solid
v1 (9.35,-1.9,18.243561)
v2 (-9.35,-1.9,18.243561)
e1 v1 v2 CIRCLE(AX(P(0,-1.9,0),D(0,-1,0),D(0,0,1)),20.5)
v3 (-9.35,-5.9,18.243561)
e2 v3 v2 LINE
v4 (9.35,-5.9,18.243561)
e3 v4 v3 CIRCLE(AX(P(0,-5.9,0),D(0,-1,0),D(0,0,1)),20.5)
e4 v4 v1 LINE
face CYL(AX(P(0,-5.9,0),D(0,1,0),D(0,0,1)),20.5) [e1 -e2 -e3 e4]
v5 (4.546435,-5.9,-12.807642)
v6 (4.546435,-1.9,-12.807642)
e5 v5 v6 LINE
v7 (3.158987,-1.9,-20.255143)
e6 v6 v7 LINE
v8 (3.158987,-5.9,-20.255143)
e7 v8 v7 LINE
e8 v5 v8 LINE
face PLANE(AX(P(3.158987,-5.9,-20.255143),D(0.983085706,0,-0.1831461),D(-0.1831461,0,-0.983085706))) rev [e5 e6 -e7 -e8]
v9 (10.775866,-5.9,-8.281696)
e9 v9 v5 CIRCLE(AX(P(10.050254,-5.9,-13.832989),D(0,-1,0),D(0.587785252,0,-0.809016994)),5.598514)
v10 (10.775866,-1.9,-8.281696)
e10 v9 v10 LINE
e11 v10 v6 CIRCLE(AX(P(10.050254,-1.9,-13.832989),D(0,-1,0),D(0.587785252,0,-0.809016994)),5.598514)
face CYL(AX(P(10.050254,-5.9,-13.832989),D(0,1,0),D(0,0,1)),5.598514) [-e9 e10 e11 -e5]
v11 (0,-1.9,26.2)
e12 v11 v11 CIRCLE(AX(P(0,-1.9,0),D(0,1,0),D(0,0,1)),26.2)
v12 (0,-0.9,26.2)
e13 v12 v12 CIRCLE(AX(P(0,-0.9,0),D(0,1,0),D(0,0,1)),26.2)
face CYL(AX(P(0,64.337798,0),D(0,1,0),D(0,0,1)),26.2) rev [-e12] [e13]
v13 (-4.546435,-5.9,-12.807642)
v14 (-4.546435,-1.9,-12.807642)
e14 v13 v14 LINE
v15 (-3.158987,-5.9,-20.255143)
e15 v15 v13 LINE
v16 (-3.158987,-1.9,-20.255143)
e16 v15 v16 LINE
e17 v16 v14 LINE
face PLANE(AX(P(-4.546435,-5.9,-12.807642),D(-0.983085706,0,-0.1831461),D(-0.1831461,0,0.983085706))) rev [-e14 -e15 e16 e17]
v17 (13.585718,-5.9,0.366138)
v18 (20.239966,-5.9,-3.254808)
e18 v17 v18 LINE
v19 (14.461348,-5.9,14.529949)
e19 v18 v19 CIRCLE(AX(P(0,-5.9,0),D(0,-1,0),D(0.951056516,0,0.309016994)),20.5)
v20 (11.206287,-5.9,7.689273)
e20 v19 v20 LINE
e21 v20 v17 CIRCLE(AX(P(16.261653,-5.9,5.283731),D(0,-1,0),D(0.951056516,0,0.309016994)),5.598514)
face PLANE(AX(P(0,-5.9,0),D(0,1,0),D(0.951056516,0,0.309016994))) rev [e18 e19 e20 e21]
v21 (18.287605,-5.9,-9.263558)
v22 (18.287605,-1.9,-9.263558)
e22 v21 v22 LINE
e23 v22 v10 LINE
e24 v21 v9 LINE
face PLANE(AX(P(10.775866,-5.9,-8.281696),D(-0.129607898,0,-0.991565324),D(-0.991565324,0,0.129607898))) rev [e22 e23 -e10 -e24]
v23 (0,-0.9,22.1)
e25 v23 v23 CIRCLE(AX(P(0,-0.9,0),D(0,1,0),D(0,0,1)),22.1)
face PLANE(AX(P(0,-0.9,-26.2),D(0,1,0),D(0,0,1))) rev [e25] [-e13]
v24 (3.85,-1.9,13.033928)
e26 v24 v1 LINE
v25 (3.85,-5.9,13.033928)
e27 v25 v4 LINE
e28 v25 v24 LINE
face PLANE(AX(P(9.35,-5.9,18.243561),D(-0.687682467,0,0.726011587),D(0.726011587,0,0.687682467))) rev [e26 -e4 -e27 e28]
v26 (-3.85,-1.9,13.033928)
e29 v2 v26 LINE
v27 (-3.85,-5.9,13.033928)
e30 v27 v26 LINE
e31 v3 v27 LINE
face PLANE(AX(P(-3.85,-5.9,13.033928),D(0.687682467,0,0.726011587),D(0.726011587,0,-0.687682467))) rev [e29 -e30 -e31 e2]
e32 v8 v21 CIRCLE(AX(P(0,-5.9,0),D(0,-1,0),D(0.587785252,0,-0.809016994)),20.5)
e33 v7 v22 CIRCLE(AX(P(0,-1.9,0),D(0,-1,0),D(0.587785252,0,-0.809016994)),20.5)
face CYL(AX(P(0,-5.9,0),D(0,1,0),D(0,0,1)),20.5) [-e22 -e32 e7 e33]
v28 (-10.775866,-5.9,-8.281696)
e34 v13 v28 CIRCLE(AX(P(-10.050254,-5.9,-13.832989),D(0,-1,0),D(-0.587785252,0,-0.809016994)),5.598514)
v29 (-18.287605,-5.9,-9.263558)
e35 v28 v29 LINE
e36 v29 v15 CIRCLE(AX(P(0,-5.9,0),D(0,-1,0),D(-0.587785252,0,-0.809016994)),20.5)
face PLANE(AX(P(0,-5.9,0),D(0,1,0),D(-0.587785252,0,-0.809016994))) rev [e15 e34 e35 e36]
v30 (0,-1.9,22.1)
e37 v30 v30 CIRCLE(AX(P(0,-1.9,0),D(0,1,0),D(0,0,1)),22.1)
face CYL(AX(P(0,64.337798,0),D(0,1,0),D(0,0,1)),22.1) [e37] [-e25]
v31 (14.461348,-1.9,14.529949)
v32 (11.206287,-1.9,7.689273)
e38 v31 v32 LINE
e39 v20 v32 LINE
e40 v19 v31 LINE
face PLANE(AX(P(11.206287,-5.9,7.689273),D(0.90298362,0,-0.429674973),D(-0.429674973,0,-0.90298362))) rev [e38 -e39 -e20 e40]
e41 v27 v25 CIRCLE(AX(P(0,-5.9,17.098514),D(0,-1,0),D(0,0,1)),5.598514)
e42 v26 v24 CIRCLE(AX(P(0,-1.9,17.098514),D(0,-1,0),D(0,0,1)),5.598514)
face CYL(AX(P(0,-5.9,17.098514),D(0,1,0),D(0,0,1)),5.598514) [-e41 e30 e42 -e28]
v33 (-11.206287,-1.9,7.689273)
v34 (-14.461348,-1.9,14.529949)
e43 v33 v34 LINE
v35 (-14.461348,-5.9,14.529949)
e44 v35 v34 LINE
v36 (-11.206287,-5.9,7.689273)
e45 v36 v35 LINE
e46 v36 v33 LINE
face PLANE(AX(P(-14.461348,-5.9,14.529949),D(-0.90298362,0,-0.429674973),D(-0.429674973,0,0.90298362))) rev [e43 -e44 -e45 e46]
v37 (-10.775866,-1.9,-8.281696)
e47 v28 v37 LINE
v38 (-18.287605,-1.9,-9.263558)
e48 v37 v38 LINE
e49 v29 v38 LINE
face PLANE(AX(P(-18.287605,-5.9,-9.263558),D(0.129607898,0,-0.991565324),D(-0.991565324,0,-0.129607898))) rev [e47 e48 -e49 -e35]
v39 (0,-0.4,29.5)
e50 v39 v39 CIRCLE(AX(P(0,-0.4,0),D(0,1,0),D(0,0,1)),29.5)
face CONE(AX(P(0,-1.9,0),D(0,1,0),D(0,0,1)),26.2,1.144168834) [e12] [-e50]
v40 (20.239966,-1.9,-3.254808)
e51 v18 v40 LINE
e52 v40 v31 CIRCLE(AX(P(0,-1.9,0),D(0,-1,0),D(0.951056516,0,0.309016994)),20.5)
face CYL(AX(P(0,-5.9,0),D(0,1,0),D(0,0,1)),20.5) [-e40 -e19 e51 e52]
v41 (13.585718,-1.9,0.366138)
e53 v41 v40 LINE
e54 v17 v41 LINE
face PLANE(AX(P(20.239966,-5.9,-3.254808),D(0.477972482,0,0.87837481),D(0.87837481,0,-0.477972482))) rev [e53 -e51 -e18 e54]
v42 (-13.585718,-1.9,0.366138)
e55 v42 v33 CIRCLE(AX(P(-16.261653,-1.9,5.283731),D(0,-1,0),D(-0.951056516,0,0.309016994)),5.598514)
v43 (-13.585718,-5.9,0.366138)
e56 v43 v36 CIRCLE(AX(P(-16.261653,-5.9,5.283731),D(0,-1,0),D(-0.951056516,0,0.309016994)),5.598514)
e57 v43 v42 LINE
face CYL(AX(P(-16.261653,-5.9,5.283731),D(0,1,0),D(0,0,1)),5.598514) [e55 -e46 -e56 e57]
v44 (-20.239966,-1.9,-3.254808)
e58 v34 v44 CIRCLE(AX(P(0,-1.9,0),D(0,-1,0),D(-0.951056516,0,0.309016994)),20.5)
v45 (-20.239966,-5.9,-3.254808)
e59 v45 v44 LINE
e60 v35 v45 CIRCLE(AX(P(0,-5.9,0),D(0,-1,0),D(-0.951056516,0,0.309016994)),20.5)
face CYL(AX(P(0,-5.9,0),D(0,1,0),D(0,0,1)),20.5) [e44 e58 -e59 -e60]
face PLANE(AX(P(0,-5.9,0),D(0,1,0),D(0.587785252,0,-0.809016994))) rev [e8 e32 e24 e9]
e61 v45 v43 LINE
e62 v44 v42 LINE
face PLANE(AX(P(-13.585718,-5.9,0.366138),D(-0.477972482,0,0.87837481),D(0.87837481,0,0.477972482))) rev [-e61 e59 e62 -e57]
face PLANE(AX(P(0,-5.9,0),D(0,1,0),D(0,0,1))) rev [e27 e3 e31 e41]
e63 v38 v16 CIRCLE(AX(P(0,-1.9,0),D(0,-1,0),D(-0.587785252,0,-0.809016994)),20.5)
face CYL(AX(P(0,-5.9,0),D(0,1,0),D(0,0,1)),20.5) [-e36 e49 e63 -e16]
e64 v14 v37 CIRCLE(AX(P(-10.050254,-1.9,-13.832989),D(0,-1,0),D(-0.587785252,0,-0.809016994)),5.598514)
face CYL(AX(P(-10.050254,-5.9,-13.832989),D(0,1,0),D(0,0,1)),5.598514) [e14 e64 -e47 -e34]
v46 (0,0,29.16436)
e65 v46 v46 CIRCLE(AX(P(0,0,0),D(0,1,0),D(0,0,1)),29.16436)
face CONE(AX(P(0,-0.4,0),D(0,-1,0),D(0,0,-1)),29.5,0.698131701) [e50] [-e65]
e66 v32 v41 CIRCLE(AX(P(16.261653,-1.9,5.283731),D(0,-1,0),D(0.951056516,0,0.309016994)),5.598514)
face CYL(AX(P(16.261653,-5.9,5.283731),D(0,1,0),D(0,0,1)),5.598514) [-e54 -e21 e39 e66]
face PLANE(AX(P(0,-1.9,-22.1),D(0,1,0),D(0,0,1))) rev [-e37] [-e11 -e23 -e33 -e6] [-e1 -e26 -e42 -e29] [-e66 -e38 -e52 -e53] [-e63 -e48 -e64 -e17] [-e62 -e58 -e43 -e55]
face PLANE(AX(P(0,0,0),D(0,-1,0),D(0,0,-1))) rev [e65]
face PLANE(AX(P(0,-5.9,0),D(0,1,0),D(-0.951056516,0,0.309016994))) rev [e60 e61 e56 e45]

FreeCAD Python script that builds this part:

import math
import FreeCAD as App
import Part
import Sketcher
Q = App.Units.Quantity


def add_polygon(sketch, points):
    """Adds a closed chain of lines whose ends are joined by coincident constraints."""
    first, n = sketch.GeometryCount, len(points)
    for a, b in zip(points, points[1:] + points[:1]):
        sketch.addGeometry(Part.LineSegment(App.Vector(*a, 0), App.Vector(*b, 0)), False)
    for i in range(n):
        sketch.addConstraint(Sketcher.Constraint("Coincident", first + i, 2, first + (i + 1) % n, 1))

doc = App.newDocument("Part")
params = doc.addObject("Spreadsheet::Sheet", "Params")
for row, (alias, value) in enumerate([
    ("sketch1_width", "1 mm"),
    ("sketch1_width2", "1.9 mm"),
    ("sketch1_height", "22.1 mm"),
    ("sketch1_height2", "4.1 mm"),
    ("revolution_angle", "360 deg"),
    ("sketch2_radius", "20.5 mm"),
    ("pad1_length", "4 mm"),
], start=1):
    params.set(f"A{row}", alias)
    params.set(f"B{row}", "=" + value)
    params.setAlias(f"B{row}", alias)

body = doc.addObject("PartDesign::Body", "Body")

sketch1 = body.newObject("Sketcher::SketchObject", "Sketch")
sketch1.AttachmentSupport = (doc.getObject("YZ_Plane"), [""])
sketch1.MapMode = "FlatFace"
add_polygon(sketch1, [(0, -29.2), (0, 0), (-1.9, 0), (-1.9, -22.1), (-0.9, -22.1), (-0.9, -26.2), (-1.9, -26.2), (-0.4, -29.5)])
sketch1.addConstraint([
    Sketcher.Constraint("Vertical", 0),
    Sketcher.Constraint("Horizontal", 1),
    Sketcher.Constraint("Vertical", 2),
    Sketcher.Constraint("Horizontal", 3),
    Sketcher.Constraint("Vertical", 4),
    Sketcher.Constraint("Horizontal", 5),
    Sketcher.Constraint("Coincident", 0, 2, -1, 1),
    Sketcher.Constraint("Vertical", 2, 2, 5, 2),
    Sketcher.Constraint("DistanceX", 3, 1, 3, 2, 1.0),
    Sketcher.Constraint("Angle", 7, Q("40 deg")),
    Sketcher.Constraint("DistanceX", 1, 2, 1, 1, 1.9),
    Sketcher.Constraint("DistanceY", 2, 2, 2, 1, 22.1),
    Sketcher.Constraint("DistanceY", 4, 2, 4, 1, 4.1),
    Sketcher.Constraint("DistanceX", 6, 2, -1, 1, 0.4),
    Sketcher.Constraint("DistanceY", 6, 2, -1, 1, 29.5),
])
sketch1.setExpression("Constraints[16]", "Params.sketch1_width")
sketch1.setExpression("Constraints[18]", "Params.sketch1_width2")
sketch1.setExpression("Constraints[19]", "Params.sketch1_height")
sketch1.setExpression("Constraints[20]", "Params.sketch1_height2")
revolution = body.newObject("PartDesign::Revolution", "Revolution")
revolution.Profile = sketch1
revolution.ReferenceAxis = (sketch1, ["H_Axis"])
revolution.setExpression("Angle", "Params.revolution_angle")

sketch2 = body.newObject("Sketcher::SketchObject", "Sketch001")
sketch2.AttachmentSupport = (doc.getObject("XZ_Plane"), [""])
sketch2.MapMode = "FlatFace"
sketch2.AttachmentOffset = App.Placement(App.Vector(0, 0, 1.9), App.Rotation())
sketch2.addGeometry([
    Part.LineSegment(App.Vector(4, 13, 0), App.Vector(9, 18, 0)),
    Part.ArcOfCircle(Part.Circle(App.Vector(0, 0, 0), App.Vector(0, 0, 1), 21), math.radians(63), math.radians(117)),
    Part.LineSegment(App.Vector(-9, 18, 0), App.Vector(-4, 13, 0)),
    Part.ArcOfCircle(Part.Circle(App.Vector(0, 17, 0), App.Vector(0, 0, 1), 6), math.radians(-133), math.radians(-47)),
], False)
sketch2.addConstraint([
    Sketcher.Constraint("Coincident", 0, 2, 1, 1),
    Sketcher.Constraint("Coincident", 1, 2, 2, 1),
    Sketcher.Constraint("Tangent", 2, 2, 3, 1),
    Sketcher.Constraint("Tangent", 3, 2, 0, 1),
    Sketcher.Constraint("Coincident", 1, 3, -1, 1),
    Sketcher.Constraint("Symmetric", 2, 2, 3, 2, -2),
    Sketcher.Constraint("Radius", 1, 20.5),
    Sketcher.Constraint("DistanceX", 1, 2, 0, 2, 18.7),
    Sketcher.Constraint("DistanceX", 1, 2, 2, 2, 5.5),
    Sketcher.Constraint("Radius", 3, 5.598514),
])
sketch2.setExpression("Constraints[6]", "Params.sketch2_radius")
pad1 = body.newObject("PartDesign::Pad", "Pad")
pad1.Profile = sketch2
pad1.setExpression("Length", "Params.pad1_length")
doc.recompute()

polarpattern = body.newObject("PartDesign::PolarPattern", "PolarPattern")
polarpattern.Originals = [pad1]
polarpattern.Axis = (doc.getObject("Y_Axis"), [""])
polarpattern.Angle = 360
polarpattern.Occurrences = 5
body.Tip = polarpattern

doc.recompute()
